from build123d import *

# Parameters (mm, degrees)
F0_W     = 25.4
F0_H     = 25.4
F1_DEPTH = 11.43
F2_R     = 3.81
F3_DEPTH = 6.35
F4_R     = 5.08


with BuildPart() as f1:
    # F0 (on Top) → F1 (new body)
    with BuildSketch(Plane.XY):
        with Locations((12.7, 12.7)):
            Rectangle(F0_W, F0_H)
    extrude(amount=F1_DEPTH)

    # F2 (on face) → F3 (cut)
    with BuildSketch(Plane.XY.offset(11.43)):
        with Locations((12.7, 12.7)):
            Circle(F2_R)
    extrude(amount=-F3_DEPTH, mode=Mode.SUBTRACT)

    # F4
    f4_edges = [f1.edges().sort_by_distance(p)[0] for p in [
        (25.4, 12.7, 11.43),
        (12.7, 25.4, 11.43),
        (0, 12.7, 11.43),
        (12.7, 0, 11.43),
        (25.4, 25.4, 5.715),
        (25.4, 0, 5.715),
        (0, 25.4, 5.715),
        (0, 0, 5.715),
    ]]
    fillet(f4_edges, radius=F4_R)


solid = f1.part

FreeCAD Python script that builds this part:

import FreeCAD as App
import Part
import Sketcher
Q = App.Units.Quantity


def edges_at(feature, points):
    """Names of the edges that pass closest to the given points."""
    edges = feature.Shape.Edges
    near = lambda p: min(range(len(edges)), key=lambda i: edges[i].distToShape(Part.Vertex(*p))[0])
    return sorted({f"Edge{near(p) + 1}" for p in points})

doc = App.newDocument("Part")
body = doc.addObject("PartDesign::Body", "Body")

sketch1 = body.newObject("Sketcher::SketchObject", "Sketch")
sketch1.AttachmentSupport = (doc.getObject("XY_Plane"), [""])
sketch1.MapMode = "FlatFace"
sketch1.addGeometry([
    Part.LineSegment(App.Vector(0, 25.4, 0), App.Vector(0, 0, 0)),
    Part.LineSegment(App.Vector(0, 0, 0), App.Vector(25.4, 0, 0)),
    Part.LineSegment(App.Vector(25.4, 0, 0), App.Vector(25.4, 25.4, 0)),
    Part.LineSegment(App.Vector(25.4, 25.4, 0), App.Vector(0, 25.4, 0)),
], False)
sketch1.addConstraint([
    Sketcher.Constraint("Coincident", 0, 2, 1, 1),
    Sketcher.Constraint("Coincident", 1, 2, 2, 1),
    Sketcher.Constraint("Coincident", 2, 2, 3, 1),
    Sketcher.Constraint("Coincident", 3, 2, 0, 1),
    Sketcher.Constraint("Vertical", 0),
    Sketcher.Constraint("Horizontal", 1),
    Sketcher.Constraint("Vertical", 2),
    Sketcher.Constraint("Horizontal", 3),
    Sketcher.Constraint("Coincident", 0, 2, -1, 1),
    Sketcher.Constraint("Equal", 3, 0),
    Sketcher.Constraint("DistanceX", 1, 1, 1, 2, Q("1 in")),
])
pad1 = body.newObject("PartDesign::Pad", "Pad")
pad1.Profile = sketch1
pad1.Length = Q("0.45 in")

sketch2 = body.newObject("Sketcher::SketchObject", "Sketch001")
sketch2.AttachmentSupport = (doc.getObject("XY_Plane"), [""])
sketch2.MapMode = "FlatFace"
sketch2.AttachmentOffset = App.Placement(App.Vector(0, 0, 0.45 * 25.4), App.Rotation())
sketch2.addGeometry(Part.Circle(App.Vector(12.7, 12.7, 0), App.Vector(0, 0, 1), 3.81), False)
sketch2.addConstraint([
    Sketcher.Constraint("Diameter", 0, Q("0.3 in")),
    Sketcher.Constraint("DistanceX", -1, 1, 0, 3, Q("0.5 in")),
    Sketcher.Constraint("DistanceY", -1, 1, 0, 3, Q("0.5 in")),
])
pocket1 = body.newObject("PartDesign::Pocket", "Pocket")
pocket1.Profile = sketch2
pocket1.Length = Q("0.25 in")
doc.recompute()

fillet = body.newObject("PartDesign::Fillet", "Fillet")
fillet.Base = (pocket1, edges_at(pocket1, [
    (25.4, 12.7, 11.43),
    (12.7, 25.4, 11.43),
    (0, 12.7, 11.43),
    (12.7, 0, 11.43),
    (25.4, 25.4, 5.715),
    (25.4, 0, 5.715),
    (0, 25.4, 5.715),
    (0, 0, 5.715),
]))
fillet.Radius = Q("0.2 in")

doc.recompute()
